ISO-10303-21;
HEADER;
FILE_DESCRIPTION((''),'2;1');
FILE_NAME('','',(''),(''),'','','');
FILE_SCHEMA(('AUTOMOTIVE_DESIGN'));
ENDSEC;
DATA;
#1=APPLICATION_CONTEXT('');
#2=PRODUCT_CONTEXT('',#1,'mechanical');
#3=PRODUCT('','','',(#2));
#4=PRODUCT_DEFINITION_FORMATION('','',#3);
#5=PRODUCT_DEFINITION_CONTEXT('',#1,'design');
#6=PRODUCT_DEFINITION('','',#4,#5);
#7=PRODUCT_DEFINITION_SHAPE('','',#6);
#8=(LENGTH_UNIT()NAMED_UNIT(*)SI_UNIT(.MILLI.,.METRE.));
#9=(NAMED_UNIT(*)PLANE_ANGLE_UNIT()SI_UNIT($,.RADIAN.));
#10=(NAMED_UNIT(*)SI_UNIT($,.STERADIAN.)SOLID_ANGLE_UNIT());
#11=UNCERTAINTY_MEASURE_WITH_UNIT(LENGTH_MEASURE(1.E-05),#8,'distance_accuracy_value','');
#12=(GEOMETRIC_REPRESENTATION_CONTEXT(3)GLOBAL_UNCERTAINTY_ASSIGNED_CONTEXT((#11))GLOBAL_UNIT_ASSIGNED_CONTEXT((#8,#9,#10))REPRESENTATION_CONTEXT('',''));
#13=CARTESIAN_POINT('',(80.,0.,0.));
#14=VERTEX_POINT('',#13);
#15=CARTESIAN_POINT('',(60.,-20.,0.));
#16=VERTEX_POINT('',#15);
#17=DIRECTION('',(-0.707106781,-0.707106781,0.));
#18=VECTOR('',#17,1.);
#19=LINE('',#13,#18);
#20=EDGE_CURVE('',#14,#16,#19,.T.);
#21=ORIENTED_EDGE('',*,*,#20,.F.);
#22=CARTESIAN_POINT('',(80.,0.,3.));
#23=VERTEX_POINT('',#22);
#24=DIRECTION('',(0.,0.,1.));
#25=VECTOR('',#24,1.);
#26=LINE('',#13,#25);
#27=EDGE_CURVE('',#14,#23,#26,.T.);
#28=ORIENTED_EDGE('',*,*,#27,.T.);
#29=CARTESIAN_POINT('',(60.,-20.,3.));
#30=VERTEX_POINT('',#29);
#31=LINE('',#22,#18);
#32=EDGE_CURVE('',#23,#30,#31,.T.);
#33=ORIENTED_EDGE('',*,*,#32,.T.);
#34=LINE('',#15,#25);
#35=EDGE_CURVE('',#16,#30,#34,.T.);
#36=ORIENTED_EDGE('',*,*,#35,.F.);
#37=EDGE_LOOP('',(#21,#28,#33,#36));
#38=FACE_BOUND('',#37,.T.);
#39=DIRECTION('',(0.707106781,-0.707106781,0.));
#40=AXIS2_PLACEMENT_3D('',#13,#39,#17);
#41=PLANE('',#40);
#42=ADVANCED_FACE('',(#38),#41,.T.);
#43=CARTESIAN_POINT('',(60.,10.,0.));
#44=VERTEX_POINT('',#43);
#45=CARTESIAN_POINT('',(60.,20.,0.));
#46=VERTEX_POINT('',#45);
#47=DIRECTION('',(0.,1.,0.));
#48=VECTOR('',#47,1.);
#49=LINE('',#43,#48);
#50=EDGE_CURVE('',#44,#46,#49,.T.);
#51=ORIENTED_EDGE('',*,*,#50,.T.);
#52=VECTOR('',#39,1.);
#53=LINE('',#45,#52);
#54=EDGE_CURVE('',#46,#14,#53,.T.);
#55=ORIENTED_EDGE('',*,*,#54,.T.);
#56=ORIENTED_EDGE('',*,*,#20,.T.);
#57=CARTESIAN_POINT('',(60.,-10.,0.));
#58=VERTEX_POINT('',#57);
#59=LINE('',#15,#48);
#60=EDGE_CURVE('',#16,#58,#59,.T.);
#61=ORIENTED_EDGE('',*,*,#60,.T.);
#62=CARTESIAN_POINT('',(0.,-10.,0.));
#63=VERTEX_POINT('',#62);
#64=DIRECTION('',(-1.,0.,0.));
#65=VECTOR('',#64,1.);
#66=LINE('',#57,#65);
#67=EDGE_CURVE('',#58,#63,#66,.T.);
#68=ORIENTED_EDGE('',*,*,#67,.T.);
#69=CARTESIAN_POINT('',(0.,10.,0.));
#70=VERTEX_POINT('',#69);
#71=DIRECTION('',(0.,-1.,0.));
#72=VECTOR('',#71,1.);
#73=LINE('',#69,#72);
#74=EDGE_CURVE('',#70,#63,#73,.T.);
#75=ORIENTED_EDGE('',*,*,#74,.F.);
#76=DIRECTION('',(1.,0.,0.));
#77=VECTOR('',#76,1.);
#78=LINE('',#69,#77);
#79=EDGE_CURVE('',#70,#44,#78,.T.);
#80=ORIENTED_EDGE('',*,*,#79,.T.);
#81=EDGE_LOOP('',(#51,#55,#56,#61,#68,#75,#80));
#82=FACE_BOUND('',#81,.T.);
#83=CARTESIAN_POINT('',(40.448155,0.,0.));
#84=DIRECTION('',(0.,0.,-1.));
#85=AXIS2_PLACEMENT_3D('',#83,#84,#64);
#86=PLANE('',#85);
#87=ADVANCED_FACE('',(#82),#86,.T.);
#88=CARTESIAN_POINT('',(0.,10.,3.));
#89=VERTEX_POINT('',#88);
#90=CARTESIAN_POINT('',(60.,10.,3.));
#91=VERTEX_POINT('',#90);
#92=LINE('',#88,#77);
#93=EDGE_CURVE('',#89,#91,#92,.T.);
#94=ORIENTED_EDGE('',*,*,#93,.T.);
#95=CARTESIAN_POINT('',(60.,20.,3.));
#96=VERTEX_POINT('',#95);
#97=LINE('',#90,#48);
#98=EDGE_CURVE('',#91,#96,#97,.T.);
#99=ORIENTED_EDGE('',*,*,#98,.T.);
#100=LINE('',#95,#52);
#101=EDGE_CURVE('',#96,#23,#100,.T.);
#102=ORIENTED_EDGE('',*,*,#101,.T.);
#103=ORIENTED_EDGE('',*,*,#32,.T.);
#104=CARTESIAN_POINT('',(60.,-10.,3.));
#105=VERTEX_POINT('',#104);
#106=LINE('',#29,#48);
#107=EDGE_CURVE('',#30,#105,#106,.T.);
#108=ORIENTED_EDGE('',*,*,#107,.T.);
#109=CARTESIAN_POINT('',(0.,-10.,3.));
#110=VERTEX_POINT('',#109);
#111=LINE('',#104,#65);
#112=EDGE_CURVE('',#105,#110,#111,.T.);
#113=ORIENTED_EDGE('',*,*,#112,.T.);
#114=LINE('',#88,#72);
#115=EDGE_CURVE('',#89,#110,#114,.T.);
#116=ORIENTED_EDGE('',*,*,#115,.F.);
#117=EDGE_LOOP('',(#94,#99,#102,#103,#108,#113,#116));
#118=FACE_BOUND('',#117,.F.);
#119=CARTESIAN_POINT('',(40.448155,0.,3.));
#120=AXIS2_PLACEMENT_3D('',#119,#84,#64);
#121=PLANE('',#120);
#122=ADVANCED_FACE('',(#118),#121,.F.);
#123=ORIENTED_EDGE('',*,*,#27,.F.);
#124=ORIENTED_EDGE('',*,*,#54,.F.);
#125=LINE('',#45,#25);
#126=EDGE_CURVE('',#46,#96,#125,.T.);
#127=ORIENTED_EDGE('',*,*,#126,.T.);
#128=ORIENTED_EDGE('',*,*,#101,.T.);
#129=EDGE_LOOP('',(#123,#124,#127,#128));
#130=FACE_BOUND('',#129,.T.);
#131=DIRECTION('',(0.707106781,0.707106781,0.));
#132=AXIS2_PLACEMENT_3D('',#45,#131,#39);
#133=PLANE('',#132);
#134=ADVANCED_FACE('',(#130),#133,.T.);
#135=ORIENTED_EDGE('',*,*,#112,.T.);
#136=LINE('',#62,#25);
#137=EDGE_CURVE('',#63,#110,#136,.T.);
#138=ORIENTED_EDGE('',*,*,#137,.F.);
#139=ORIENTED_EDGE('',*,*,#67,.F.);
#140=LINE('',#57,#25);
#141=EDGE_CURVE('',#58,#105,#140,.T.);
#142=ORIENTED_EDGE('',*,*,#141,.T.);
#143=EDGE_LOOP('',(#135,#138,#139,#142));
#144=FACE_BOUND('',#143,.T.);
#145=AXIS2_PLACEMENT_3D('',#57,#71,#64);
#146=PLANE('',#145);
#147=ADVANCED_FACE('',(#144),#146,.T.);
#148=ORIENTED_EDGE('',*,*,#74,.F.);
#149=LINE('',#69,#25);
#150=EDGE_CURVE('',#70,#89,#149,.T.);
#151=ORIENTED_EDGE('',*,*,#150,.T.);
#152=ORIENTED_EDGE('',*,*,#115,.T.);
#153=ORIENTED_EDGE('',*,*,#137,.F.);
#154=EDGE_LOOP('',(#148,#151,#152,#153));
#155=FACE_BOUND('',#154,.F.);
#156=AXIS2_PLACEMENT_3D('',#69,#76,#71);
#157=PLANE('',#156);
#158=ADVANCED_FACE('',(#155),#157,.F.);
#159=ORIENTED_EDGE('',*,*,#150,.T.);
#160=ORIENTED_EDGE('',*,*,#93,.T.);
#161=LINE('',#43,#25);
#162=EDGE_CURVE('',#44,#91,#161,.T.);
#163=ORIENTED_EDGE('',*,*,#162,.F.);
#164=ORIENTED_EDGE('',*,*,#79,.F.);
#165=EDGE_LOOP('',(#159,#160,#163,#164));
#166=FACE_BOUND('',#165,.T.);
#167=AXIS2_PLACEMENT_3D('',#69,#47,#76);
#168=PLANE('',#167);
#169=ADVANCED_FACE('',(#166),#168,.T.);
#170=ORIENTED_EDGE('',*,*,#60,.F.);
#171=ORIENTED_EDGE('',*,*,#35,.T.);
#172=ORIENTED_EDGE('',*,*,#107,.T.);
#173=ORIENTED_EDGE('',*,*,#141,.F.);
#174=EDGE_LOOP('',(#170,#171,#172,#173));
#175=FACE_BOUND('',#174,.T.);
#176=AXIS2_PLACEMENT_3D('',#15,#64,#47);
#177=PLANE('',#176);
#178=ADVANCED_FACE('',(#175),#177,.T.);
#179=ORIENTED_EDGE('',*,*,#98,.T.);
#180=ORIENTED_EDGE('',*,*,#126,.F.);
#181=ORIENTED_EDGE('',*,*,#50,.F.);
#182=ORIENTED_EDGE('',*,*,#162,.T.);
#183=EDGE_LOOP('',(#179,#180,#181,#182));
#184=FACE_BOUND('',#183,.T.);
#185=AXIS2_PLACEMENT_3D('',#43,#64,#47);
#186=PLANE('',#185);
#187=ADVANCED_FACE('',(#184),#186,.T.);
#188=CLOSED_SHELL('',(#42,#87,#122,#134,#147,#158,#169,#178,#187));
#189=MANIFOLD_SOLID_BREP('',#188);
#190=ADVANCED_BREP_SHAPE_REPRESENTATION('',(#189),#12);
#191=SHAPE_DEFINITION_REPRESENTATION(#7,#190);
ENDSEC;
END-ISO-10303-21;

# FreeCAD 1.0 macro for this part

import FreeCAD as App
import Part
import Sketcher

V = App.Vector
Q = App.Units.Quantity


def add_polygon(sketch, points):
    """Adds a closed chain of lines whose ends are joined by coincident constraints."""
    first, n = sketch.GeometryCount, len(points)
    for a, b in zip(points, points[1:] + points[:1]):
        sketch.addGeometry(Part.LineSegment(App.Vector(*a, 0), App.Vector(*b, 0)), False)
    for i in range(n):
        sketch.addConstraint(Sketcher.Constraint("Coincident", first + i, 2, first + (i + 1) % n, 1))

doc = App.newDocument("Part")
body = doc.addObject("PartDesign::Body", "Body")

# Sketch on XY plane
sketch1 = body.newObject("Sketcher::SketchObject", "Sketch")
sketch1.AttachmentSupport = (doc.getObject("XY_Plane"), [""])
sketch1.MapMode = "FlatFace"
add_polygon(sketch1, [(60, 10), (0, 10), (0, -10), (60, -10), (60, -20), (80, 0), (60, 20)])  # lines 0-6
sketch1.addConstraint([
    Sketcher.Constraint("Horizontal", 0),
    Sketcher.Constraint("Vertical", 1),
    Sketcher.Constraint("Horizontal", 2),
    Sketcher.Constraint("Vertical", 3),
    Sketcher.Constraint("Vertical", 6),
    Sketcher.Constraint("Symmetric", 0, 2, 1, 2, -1, 1),
    Sketcher.Constraint("Symmetric", 3, 2, 5, 2, -1),
    Sketcher.Constraint("PointOnObject", 4, 2, -1),
    Sketcher.Constraint("Perpendicular", 4, 5),
    Sketcher.Constraint("DistanceX", 0, 2, 0, 1, Q("60 mm")),
    Sketcher.Constraint("DistanceY", 1, 2, 1, 1, Q("20 mm")),
    Sketcher.Constraint("DistanceY", 3, 2, 3, 1, Q("10 mm")),
])
pad1 = body.newObject("PartDesign::Pad", "Pad")
pad1.Profile = sketch1
pad1.Length = 3

doc.recompute()
